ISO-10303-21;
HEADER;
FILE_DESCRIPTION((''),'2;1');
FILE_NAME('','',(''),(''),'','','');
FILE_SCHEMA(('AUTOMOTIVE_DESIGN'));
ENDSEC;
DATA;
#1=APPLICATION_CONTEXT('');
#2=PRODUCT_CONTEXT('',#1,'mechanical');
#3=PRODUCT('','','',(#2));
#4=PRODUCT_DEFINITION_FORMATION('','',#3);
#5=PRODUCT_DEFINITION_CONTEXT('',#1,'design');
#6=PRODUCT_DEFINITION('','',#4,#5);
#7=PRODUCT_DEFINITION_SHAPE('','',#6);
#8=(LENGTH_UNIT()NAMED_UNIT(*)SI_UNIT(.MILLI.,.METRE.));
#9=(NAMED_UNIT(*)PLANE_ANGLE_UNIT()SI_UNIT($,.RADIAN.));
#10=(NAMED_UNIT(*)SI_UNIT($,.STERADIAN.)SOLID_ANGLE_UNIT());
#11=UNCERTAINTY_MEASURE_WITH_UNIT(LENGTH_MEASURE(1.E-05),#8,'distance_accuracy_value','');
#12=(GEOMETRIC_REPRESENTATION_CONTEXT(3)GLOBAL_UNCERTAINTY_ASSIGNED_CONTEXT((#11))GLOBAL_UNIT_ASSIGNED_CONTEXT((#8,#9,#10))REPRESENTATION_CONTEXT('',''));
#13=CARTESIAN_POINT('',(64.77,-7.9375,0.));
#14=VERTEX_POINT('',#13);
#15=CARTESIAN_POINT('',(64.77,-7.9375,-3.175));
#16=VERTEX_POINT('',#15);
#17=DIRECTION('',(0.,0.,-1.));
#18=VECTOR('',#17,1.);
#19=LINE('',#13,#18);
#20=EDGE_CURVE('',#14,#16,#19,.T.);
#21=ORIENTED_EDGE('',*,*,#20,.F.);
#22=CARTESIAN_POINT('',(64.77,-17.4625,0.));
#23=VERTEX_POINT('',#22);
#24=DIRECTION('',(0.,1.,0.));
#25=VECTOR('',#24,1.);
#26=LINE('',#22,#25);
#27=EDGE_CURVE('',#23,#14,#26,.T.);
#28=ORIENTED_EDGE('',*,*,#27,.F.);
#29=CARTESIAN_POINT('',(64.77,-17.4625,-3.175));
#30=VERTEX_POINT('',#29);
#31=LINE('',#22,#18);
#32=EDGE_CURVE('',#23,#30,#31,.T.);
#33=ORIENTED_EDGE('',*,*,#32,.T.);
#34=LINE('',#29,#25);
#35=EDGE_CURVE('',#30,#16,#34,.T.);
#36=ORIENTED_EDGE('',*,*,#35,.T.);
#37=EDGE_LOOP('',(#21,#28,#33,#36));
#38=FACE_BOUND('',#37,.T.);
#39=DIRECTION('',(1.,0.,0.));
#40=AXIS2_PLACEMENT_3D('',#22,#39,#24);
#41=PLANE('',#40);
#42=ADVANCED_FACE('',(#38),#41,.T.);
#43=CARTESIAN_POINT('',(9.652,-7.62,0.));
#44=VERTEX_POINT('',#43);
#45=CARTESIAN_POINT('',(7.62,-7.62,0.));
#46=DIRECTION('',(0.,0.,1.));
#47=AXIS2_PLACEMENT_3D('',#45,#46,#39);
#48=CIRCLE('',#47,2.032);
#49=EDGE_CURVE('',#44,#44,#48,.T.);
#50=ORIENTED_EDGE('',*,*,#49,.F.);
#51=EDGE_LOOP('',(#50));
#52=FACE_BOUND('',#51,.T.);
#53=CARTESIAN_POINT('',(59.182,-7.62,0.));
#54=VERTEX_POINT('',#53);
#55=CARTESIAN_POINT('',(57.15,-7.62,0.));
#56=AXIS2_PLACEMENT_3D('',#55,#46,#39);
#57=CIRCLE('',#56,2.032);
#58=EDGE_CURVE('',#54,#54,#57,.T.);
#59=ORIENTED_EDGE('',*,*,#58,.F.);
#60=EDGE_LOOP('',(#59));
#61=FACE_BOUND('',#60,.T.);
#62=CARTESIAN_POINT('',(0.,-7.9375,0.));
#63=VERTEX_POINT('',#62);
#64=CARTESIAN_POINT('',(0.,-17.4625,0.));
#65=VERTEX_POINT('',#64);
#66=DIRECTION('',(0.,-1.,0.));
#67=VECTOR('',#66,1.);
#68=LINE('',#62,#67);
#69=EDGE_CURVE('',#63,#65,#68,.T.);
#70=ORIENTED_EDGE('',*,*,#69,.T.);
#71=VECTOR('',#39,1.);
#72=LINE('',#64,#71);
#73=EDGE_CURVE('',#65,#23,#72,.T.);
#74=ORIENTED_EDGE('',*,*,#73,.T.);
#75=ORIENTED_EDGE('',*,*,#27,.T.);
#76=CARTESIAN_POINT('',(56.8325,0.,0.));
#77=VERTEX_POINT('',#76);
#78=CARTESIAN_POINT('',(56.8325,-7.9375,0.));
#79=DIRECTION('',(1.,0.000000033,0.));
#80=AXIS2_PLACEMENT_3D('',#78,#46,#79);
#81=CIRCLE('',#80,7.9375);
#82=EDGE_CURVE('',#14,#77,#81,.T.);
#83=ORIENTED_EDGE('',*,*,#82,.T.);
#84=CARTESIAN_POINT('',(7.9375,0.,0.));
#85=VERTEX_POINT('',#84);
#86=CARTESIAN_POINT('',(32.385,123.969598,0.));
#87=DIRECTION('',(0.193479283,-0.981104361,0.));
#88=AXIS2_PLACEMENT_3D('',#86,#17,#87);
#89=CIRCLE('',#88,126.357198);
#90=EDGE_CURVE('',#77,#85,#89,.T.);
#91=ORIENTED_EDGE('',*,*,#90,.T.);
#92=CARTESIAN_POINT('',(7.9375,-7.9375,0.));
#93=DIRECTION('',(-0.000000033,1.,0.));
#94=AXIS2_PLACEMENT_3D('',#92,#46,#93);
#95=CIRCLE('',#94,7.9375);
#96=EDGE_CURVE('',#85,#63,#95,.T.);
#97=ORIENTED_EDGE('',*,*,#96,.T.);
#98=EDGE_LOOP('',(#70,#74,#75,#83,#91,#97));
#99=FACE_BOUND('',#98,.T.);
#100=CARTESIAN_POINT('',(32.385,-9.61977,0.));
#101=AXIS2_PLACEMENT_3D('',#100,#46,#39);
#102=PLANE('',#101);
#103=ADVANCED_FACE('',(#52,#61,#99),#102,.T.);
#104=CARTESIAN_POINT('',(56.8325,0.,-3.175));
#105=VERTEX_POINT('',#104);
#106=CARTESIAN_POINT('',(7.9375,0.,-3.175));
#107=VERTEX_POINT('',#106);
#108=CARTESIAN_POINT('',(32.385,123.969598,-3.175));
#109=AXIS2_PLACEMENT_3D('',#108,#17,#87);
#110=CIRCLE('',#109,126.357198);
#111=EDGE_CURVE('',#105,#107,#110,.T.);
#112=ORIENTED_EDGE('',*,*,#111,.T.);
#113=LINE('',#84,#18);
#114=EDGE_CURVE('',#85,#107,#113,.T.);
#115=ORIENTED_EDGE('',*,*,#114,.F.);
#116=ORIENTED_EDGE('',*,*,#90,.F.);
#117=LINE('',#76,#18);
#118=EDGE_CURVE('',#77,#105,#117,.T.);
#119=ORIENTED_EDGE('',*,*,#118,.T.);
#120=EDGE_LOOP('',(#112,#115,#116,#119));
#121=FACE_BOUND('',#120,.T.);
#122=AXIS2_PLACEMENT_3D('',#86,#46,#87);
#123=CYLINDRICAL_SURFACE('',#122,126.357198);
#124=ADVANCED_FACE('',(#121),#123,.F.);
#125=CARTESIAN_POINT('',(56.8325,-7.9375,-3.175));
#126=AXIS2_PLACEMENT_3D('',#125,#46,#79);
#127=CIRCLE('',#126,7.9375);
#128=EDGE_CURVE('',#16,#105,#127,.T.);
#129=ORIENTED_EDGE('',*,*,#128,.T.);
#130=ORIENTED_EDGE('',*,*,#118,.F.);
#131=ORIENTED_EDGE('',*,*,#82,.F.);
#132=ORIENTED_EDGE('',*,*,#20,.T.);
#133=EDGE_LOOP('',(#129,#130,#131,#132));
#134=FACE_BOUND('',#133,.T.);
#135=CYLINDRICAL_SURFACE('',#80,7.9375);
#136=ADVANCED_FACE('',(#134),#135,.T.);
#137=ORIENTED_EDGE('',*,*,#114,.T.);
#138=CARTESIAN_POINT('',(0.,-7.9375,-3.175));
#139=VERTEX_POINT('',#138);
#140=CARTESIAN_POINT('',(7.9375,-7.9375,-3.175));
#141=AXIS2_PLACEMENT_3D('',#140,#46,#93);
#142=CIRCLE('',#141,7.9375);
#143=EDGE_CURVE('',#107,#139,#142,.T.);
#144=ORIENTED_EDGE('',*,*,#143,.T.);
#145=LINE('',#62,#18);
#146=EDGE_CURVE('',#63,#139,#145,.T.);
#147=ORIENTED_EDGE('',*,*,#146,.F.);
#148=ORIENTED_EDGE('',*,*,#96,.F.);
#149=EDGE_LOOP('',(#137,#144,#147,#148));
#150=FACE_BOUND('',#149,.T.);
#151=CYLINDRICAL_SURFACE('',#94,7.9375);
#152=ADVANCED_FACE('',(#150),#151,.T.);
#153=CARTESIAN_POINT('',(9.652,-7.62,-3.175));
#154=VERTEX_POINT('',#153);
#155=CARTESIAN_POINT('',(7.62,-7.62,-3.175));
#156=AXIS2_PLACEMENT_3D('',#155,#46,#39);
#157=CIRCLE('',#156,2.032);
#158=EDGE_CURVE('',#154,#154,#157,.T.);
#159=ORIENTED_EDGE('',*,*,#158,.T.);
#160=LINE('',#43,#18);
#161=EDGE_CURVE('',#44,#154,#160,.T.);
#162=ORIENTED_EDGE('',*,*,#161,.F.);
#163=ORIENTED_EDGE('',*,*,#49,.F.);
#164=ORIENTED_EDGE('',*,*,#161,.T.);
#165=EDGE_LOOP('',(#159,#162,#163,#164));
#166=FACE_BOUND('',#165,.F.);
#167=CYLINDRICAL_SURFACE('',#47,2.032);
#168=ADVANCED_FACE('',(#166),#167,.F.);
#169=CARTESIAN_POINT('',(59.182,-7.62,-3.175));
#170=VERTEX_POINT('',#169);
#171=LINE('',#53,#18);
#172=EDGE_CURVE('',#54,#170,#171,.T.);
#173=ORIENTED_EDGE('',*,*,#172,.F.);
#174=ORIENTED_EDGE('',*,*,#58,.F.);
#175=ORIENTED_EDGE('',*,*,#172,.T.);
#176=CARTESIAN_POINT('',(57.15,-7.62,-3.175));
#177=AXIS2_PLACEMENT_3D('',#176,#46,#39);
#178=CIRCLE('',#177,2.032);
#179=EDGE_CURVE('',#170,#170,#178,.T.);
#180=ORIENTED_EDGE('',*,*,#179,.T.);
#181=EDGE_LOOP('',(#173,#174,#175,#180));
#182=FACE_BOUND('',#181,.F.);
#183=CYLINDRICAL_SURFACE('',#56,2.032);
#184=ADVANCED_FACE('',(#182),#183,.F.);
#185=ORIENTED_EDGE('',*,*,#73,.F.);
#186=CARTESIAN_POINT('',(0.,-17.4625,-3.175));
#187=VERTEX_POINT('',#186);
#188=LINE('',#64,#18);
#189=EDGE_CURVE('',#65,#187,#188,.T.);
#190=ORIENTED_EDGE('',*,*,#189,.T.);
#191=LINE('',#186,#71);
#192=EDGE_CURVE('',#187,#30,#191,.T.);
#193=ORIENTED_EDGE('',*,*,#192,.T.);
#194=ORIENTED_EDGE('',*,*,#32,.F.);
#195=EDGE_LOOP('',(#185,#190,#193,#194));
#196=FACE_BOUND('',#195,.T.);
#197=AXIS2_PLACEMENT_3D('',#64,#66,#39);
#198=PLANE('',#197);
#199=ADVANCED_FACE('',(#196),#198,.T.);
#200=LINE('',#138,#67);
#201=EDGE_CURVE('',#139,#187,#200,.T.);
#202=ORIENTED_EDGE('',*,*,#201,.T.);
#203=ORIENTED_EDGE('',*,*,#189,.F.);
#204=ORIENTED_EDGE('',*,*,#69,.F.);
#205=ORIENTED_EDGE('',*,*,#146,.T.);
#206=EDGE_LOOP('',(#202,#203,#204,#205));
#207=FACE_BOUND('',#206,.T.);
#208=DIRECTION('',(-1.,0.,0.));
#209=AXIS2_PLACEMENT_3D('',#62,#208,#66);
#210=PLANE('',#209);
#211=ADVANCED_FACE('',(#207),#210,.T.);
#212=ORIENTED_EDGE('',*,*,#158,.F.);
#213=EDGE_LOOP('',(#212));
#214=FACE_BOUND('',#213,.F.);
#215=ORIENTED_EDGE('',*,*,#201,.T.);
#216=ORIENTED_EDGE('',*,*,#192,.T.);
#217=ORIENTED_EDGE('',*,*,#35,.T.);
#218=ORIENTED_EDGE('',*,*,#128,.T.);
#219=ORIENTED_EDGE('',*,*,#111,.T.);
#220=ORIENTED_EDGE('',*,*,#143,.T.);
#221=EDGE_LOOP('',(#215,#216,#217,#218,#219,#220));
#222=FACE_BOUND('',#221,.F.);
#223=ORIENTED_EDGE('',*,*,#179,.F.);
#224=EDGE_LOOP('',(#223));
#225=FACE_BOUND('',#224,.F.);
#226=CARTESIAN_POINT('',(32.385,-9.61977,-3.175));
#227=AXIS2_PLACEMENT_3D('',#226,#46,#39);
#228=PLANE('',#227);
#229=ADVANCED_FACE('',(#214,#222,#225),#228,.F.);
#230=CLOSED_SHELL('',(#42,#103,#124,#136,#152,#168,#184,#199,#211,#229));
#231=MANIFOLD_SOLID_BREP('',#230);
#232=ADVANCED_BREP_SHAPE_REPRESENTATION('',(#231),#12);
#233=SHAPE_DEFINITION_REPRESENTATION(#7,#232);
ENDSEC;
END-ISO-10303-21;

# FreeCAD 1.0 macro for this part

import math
import FreeCAD as App
import Part
import Sketcher

V = App.Vector
Q = App.Units.Quantity

doc = App.newDocument("Part")
body = doc.addObject("PartDesign::Body", "Body")

# Sketch on XY plane
sketch1 = doc.addObject("Sketcher::SketchObject", "Sketch")
body.addObject(sketch1)
sketch1.AttachmentSupport = (doc.XY_Plane, [""])
sketch1.MapMode = "FlatFace"
sketch1.addGeometry([
    Part.ArcOfCircle(Part.Circle(V(32.4, 124, 0), V(0, 0, 1), 126.4), math.radians(-101), math.radians(-79)),  # 0
    Part.ArcOfCircle(Part.Circle(V(7.9, -7.9, 0), V(0, 0, 1), 7.9), math.radians(90), math.radians(180)),  # 1
    Part.LineSegment(V(0, -7.9, 0), V(0, -17.5, 0)),  # 2
    Part.LineSegment(V(0, -17.5, 0), V(64.8, -17.5, 0)),  # 3
    Part.LineSegment(V(64.8, -17.5, 0), V(64.8, -7.9, 0)),  # 4
    Part.ArcOfCircle(Part.Circle(V(56.8, -7.9, 0), V(0, 0, 1), 7.9), math.radians(0), math.radians(90)),  # 5
    Part.Circle(V(7.6, -7.6, 0), V(0, 0, 1), 2),  # 6
    Part.Circle(V(57.1, -7.6, 0), V(0, 0, 1), 2),  # 7
], False)
sketch1.addConstraint([
    Sketcher.Constraint("Coincident", 0, 1, 1, 1),
    Sketcher.Constraint("Tangent", 1, 2, 2, 1),
    Sketcher.Constraint("Coincident", 2, 2, 3, 1),
    Sketcher.Constraint("Coincident", 3, 2, 4, 1),
    Sketcher.Constraint("Tangent", 4, 2, 5, 1),
    Sketcher.Constraint("Coincident", 5, 2, 0, 2),
    Sketcher.Constraint("Vertical", 2),
    Sketcher.Constraint("Horizontal", 3),
    Sketcher.Constraint("Vertical", 4),
    Sketcher.Constraint("Equal", 1, 5),
    Sketcher.Constraint("Equal", 6, 7),
    Sketcher.Constraint("PointOnObject", 0, 1, -1),
    Sketcher.Constraint("PointOnObject", 1, 2, -2),
    Sketcher.Constraint("PointOnObject", 5, 2, -1),
    Sketcher.Constraint("Horizontal", 6, 3, 7, 3),
    Sketcher.Constraint("Vertical", 1, 3, 0, 1),
    Sketcher.Constraint("Diameter", 6, Q("0.16 in")),
    Sketcher.Constraint("Radius", 1, Q("0.3125 in")),
    Sketcher.Constraint("DistanceX", 3, 1, 3, 2, Q("2.55 in")),
    Sketcher.Constraint("DistanceX", -1, 1, 6, 3, Q("0.3 in")),
    Sketcher.Constraint("DistanceY", 6, 3, -1, 1, Q("0.3 in")),
    Sketcher.Constraint("DistanceX", 7, 3, 3, 2, Q("0.3 in")),
    Sketcher.Constraint("DistanceY", 2, 2, 2, 1, Q("0.375 in")),
    Sketcher.Constraint("DistanceX", -1, 1, 0, 3, Q("1.275 in")),
    Sketcher.Constraint("Radius", 0, Q("126.357198 mm")),
])
pad1 = doc.addObject("PartDesign::Pad", "Pad")
body.addObject(pad1)
pad1.Profile = sketch1
pad1.Length = Q("0.125 in")
pad1.Reversed = True

doc.recompute()
